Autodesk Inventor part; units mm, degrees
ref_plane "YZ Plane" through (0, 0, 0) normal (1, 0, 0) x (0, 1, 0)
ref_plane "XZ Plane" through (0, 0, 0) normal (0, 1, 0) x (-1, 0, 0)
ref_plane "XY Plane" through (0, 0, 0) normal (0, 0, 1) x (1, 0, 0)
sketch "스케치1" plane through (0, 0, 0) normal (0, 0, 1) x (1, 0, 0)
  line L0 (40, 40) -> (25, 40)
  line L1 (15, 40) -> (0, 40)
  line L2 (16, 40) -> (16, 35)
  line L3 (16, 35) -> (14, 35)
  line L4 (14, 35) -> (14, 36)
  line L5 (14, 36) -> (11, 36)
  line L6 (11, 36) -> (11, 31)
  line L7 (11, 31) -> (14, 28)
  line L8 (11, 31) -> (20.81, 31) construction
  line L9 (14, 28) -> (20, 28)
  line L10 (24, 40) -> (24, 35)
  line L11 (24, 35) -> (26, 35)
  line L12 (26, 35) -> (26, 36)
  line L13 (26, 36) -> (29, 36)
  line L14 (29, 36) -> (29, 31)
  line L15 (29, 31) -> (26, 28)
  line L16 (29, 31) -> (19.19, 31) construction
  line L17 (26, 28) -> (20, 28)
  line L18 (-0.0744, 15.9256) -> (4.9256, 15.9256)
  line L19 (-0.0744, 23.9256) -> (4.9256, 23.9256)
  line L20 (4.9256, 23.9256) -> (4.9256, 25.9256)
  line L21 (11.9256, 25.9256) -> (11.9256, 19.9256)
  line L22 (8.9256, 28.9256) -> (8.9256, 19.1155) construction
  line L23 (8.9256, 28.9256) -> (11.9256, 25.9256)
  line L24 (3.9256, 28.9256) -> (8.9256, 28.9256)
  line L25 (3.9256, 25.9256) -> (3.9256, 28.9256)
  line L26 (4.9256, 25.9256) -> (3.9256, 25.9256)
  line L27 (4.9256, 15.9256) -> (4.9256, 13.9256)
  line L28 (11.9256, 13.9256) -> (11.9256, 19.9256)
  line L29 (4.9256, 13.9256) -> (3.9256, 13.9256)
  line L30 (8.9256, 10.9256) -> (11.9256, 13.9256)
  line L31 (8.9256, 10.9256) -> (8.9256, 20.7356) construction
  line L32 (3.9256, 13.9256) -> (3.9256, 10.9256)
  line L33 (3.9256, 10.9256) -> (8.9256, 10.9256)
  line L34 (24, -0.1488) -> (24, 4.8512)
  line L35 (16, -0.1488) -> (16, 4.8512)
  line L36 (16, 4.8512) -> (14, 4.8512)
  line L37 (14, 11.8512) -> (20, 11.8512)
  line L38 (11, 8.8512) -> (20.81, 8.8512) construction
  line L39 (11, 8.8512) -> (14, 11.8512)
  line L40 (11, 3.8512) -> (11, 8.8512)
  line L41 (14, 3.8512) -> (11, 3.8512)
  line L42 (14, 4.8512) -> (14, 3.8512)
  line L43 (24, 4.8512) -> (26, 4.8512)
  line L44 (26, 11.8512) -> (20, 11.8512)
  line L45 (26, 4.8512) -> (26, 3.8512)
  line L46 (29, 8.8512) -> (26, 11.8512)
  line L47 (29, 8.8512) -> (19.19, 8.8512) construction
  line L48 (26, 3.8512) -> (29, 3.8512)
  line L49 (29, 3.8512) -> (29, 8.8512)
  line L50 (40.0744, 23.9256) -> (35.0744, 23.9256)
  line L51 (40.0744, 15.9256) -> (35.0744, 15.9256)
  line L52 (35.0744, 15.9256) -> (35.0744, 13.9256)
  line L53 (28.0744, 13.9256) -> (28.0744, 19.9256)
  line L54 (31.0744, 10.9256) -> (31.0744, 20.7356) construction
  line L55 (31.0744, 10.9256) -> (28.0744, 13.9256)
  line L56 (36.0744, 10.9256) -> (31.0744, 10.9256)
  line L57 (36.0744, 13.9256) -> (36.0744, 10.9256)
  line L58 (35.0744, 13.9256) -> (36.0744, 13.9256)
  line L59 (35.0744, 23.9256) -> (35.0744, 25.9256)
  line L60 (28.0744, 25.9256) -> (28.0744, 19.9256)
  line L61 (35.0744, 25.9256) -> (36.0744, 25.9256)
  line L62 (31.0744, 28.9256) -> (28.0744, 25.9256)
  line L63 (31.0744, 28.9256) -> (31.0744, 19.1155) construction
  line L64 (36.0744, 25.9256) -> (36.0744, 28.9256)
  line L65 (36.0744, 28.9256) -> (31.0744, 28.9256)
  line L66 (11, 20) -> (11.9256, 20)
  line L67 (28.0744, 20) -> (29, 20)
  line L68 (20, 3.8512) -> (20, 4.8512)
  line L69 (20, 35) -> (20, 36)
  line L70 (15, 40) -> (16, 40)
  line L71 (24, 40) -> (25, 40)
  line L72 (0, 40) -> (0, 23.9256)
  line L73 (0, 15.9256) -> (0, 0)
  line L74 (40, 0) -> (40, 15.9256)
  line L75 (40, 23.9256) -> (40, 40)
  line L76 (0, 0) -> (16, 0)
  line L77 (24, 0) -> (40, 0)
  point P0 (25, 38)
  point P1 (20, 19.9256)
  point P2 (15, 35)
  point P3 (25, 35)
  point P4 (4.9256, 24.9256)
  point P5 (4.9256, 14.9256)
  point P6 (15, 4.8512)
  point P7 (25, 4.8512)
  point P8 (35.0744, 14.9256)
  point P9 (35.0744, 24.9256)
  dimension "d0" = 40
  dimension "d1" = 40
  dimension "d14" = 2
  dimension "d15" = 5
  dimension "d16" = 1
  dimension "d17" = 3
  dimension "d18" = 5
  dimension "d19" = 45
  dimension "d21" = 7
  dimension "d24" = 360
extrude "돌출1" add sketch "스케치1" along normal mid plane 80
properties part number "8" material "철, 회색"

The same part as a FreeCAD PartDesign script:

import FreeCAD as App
import Part
import Sketcher
from FreeCAD import Vector

doc = App.newDocument("Part")
body = doc.addObject("PartDesign::Body", "Body")

# Sketch on XY plane
sketch1 = body.newObject("Sketcher::SketchObject", "Sketch")
sketch1.AttachmentSupport = (doc.getObject("XY_Plane"), [""])
sketch1.MapMode = "FlatFace"
sketch1.addGeometry(Part.LineSegment(Vector(40, 23.9, 0), Vector(40, 40, 0)), False)
sketch1.addGeometry(Part.LineSegment(Vector(40, 40, 0), Vector(24, 40, 0)), False)
sketch1.addGeometry(Part.LineSegment(Vector(24, 40, 0), Vector(24, 35, 0)), False)
sketch1.addGeometry(Part.LineSegment(Vector(24, 35, 0), Vector(26, 35, 0)), False)
sketch1.addGeometry(Part.LineSegment(Vector(26, 35, 0), Vector(26, 36, 0)), False)
sketch1.addGeometry(Part.LineSegment(Vector(26, 36, 0), Vector(29, 36, 0)), False)
sketch1.addGeometry(Part.LineSegment(Vector(29, 36, 0), Vector(29, 31, 0)), False)
sketch1.addGeometry(Part.LineSegment(Vector(29, 31, 0), Vector(26, 28, 0)), False)
sketch1.addGeometry(Part.LineSegment(Vector(26, 28, 0), Vector(14, 28, 0)), False)
sketch1.addGeometry(Part.LineSegment(Vector(14, 28, 0), Vector(11, 31, 0)), False)
sketch1.addGeometry(Part.LineSegment(Vector(11, 31, 0), Vector(11, 36, 0)), False)
sketch1.addGeometry(Part.LineSegment(Vector(11, 36, 0), Vector(14, 36, 0)), False)
sketch1.addGeometry(Part.LineSegment(Vector(14, 36, 0), Vector(14, 35, 0)), False)
sketch1.addGeometry(Part.LineSegment(Vector(14, 35, 0), Vector(16, 35, 0)), False)
sketch1.addGeometry(Part.LineSegment(Vector(16, 35, 0), Vector(16, 40, 0)), False)
sketch1.addGeometry(Part.LineSegment(Vector(16, 40, 0), Vector(0, 40, 0)), False)
sketch1.addGeometry(Part.LineSegment(Vector(0, 40, 0), Vector(0, 23.9, 0)), False)
sketch1.addGeometry(Part.LineSegment(Vector(0, 23.9, 0), Vector(4.9, 23.9, 0)), False)
sketch1.addGeometry(Part.LineSegment(Vector(4.9, 23.9, 0), Vector(4.9, 25.9, 0)), False)
sketch1.addGeometry(Part.LineSegment(Vector(4.9, 25.9, 0), Vector(3.9, 25.9, 0)), False)
sketch1.addGeometry(Part.LineSegment(Vector(3.9, 25.9, 0), Vector(3.9, 28.9, 0)), False)
sketch1.addGeometry(Part.LineSegment(Vector(3.9, 28.9, 0), Vector(8.9, 28.9, 0)), False)
sketch1.addGeometry(Part.LineSegment(Vector(8.9, 28.9, 0), Vector(11.9, 25.9, 0)), False)
sketch1.addGeometry(Part.LineSegment(Vector(11.9, 25.9, 0), Vector(11.9, 13.9, 0)), False)
sketch1.addGeometry(Part.LineSegment(Vector(11.9, 13.9, 0), Vector(8.9, 10.9, 0)), False)
sketch1.addGeometry(Part.LineSegment(Vector(8.9, 10.9, 0), Vector(3.9, 10.9, 0)), False)
sketch1.addGeometry(Part.LineSegment(Vector(3.9, 10.9, 0), Vector(3.9, 13.9, 0)), False)
sketch1.addGeometry(Part.LineSegment(Vector(3.9, 13.9, 0), Vector(4.9, 13.9, 0)), False)
sketch1.addGeometry(Part.LineSegment(Vector(4.9, 13.9, 0), Vector(4.9, 15.9, 0)), False)
sketch1.addGeometry(Part.LineSegment(Vector(4.9, 15.9, 0), Vector(0, 15.9, 0)), False)
sketch1.addGeometry(Part.LineSegment(Vector(0, 15.9, 0), Vector(0, 0, 0)), False)
sketch1.addGeometry(Part.LineSegment(Vector(0, 0, 0), Vector(16, 0, 0)), False)
sketch1.addGeometry(Part.LineSegment(Vector(16, 0, 0), Vector(16, 4.9, 0)), False)
sketch1.addGeometry(Part.LineSegment(Vector(16, 4.9, 0), Vector(14, 4.9, 0)), False)
sketch1.addGeometry(Part.LineSegment(Vector(14, 4.9, 0), Vector(14, 3.9, 0)), False)
sketch1.addGeometry(Part.LineSegment(Vector(14, 3.9, 0), Vector(11, 3.9, 0)), False)
sketch1.addGeometry(Part.LineSegment(Vector(11, 3.9, 0), Vector(11, 8.9, 0)), False)
sketch1.addGeometry(Part.LineSegment(Vector(11, 8.9, 0), Vector(14, 11.9, 0)), False)
sketch1.addGeometry(Part.LineSegment(Vector(14, 11.9, 0), Vector(26, 11.9, 0)), False)
sketch1.addGeometry(Part.LineSegment(Vector(26, 11.9, 0), Vector(29, 8.9, 0)), False)
sketch1.addGeometry(Part.LineSegment(Vector(29, 8.9, 0), Vector(29, 3.9, 0)), False)
sketch1.addGeometry(Part.LineSegment(Vector(29, 3.9, 0), Vector(26, 3.9, 0)), False)
sketch1.addGeometry(Part.LineSegment(Vector(26, 3.9, 0), Vector(26, 4.9, 0)), False)
sketch1.addGeometry(Part.LineSegment(Vector(26, 4.9, 0), Vector(24, 4.9, 0)), False)
sketch1.addGeometry(Part.LineSegment(Vector(24, 4.9, 0), Vector(24, 0, 0)), False)
sketch1.addGeometry(Part.LineSegment(Vector(24, 0, 0), Vector(40, 0, 0)), False)
sketch1.addGeometry(Part.LineSegment(Vector(40, 0, 0), Vector(40, 15.9, 0)), False)
sketch1.addGeometry(Part.LineSegment(Vector(40, 15.9, 0), Vector(35.1, 15.9, 0)), False)
sketch1.addGeometry(Part.LineSegment(Vector(35.1, 15.9, 0), Vector(35.1, 13.9, 0)), False)
sketch1.addGeometry(Part.LineSegment(Vector(35.1, 13.9, 0), Vector(36.1, 13.9, 0)), False)
sketch1.addGeometry(Part.LineSegment(Vector(36.1, 13.9, 0), Vector(36.1, 10.9, 0)), False)
sketch1.addGeometry(Part.LineSegment(Vector(36.1, 10.9, 0), Vector(31.1, 10.9, 0)), False)
sketch1.addGeometry(Part.LineSegment(Vector(31.1, 10.9, 0), Vector(28.1, 13.9, 0)), False)
sketch1.addGeometry(Part.LineSegment(Vector(28.1, 13.9, 0), Vector(28.1, 25.9, 0)), False)
sketch1.addGeometry(Part.LineSegment(Vector(28.1, 25.9, 0), Vector(31.1, 28.9, 0)), False)
sketch1.addGeometry(Part.LineSegment(Vector(31.1, 28.9, 0), Vector(36.1, 28.9, 0)), False)
sketch1.addGeometry(Part.LineSegment(Vector(36.1, 28.9, 0), Vector(36.1, 25.9, 0)), False)
sketch1.addGeometry(Part.LineSegment(Vector(36.1, 25.9, 0), Vector(35.1, 25.9, 0)), False)
sketch1.addGeometry(Part.LineSegment(Vector(35.1, 25.9, 0), Vector(35.1, 23.9, 0)), False)
sketch1.addGeometry(Part.LineSegment(Vector(35.1, 23.9, 0), Vector(40, 23.9, 0)), False)
sketch1.addConstraint(Sketcher.Constraint("Coincident", 0, 2, 1, 1))
sketch1.addConstraint(Sketcher.Constraint("Coincident", 1, 2, 2, 1))
sketch1.addConstraint(Sketcher.Constraint("Coincident", 2, 2, 3, 1))
sketch1.addConstraint(Sketcher.Constraint("Coincident", 3, 2, 4, 1))
sketch1.addConstraint(Sketcher.Constraint("Coincident", 4, 2, 5, 1))
sketch1.addConstraint(Sketcher.Constraint("Coincident", 5, 2, 6, 1))
sketch1.addConstraint(Sketcher.Constraint("Coincident", 6, 2, 7, 1))
sketch1.addConstraint(Sketcher.Constraint("Coincident", 7, 2, 8, 1))
sketch1.addConstraint(Sketcher.Constraint("Coincident", 8, 2, 9, 1))
sketch1.addConstraint(Sketcher.Constraint("Coincident", 9, 2, 10, 1))
sketch1.addConstraint(Sketcher.Constraint("Coincident", 10, 2, 11, 1))
sketch1.addConstraint(Sketcher.Constraint("Coincident", 11, 2, 12, 1))
sketch1.addConstraint(Sketcher.Constraint("Coincident", 12, 2, 13, 1))
sketch1.addConstraint(Sketcher.Constraint("Coincident", 13, 2, 14, 1))
sketch1.addConstraint(Sketcher.Constraint("Coincident", 14, 2, 15, 1))
sketch1.addConstraint(Sketcher.Constraint("Coincident", 15, 2, 16, 1))
sketch1.addConstraint(Sketcher.Constraint("Coincident", 16, 2, 17, 1))
sketch1.addConstraint(Sketcher.Constraint("Coincident", 17, 2, 18, 1))
sketch1.addConstraint(Sketcher.Constraint("Coincident", 18, 2, 19, 1))
sketch1.addConstraint(Sketcher.Constraint("Coincident", 19, 2, 20, 1))
sketch1.addConstraint(Sketcher.Constraint("Coincident", 20, 2, 21, 1))
sketch1.addConstraint(Sketcher.Constraint("Coincident", 21, 2, 22, 1))
sketch1.addConstraint(Sketcher.Constraint("Coincident", 22, 2, 23, 1))
sketch1.addConstraint(Sketcher.Constraint("Coincident", 23, 2, 24, 1))
sketch1.addConstraint(Sketcher.Constraint("Coincident", 24, 2, 25, 1))
sketch1.addConstraint(Sketcher.Constraint("Coincident", 25, 2, 26, 1))
sketch1.addConstraint(Sketcher.Constraint("Coincident", 26, 2, 27, 1))
sketch1.addConstraint(Sketcher.Constraint("Coincident", 27, 2, 28, 1))
sketch1.addConstraint(Sketcher.Constraint("Coincident", 28, 2, 29, 1))
sketch1.addConstraint(Sketcher.Constraint("Coincident", 29, 2, 30, 1))
sketch1.addConstraint(Sketcher.Constraint("Coincident", 30, 2, 31, 1))
sketch1.addConstraint(Sketcher.Constraint("Coincident", 31, 2, 32, 1))
sketch1.addConstraint(Sketcher.Constraint("Coincident", 32, 2, 33, 1))
sketch1.addConstraint(Sketcher.Constraint("Coincident", 33, 2, 34, 1))
sketch1.addConstraint(Sketcher.Constraint("Coincident", 34, 2, 35, 1))
sketch1.addConstraint(Sketcher.Constraint("Coincident", 35, 2, 36, 1))
sketch1.addConstraint(Sketcher.Constraint("Coincident", 36, 2, 37, 1))
sketch1.addConstraint(Sketcher.Constraint("Coincident", 37, 2, 38, 1))
sketch1.addConstraint(Sketcher.Constraint("Coincident", 38, 2, 39, 1))
sketch1.addConstraint(Sketcher.Constraint("Coincident", 39, 2, 40, 1))
sketch1.addConstraint(Sketcher.Constraint("Coincident", 40, 2, 41, 1))
sketch1.addConstraint(Sketcher.Constraint("Coincident", 41, 2, 42, 1))
sketch1.addConstraint(Sketcher.Constraint("Coincident", 42, 2, 43, 1))
sketch1.addConstraint(Sketcher.Constraint("Coincident", 43, 2, 44, 1))
sketch1.addConstraint(Sketcher.Constraint("Coincident", 44, 2, 45, 1))
sketch1.addConstraint(Sketcher.Constraint("Coincident", 45, 2, 46, 1))
sketch1.addConstraint(Sketcher.Constraint("Coincident", 46, 2, 47, 1))
sketch1.addConstraint(Sketcher.Constraint("Coincident", 47, 2, 48, 1))
sketch1.addConstraint(Sketcher.Constraint("Coincident", 48, 2, 49, 1))
sketch1.addConstraint(Sketcher.Constraint("Coincident", 49, 2, 50, 1))
sketch1.addConstraint(Sketcher.Constraint("Coincident", 50, 2, 51, 1))
sketch1.addConstraint(Sketcher.Constraint("Coincident", 51, 2, 52, 1))
sketch1.addConstraint(Sketcher.Constraint("Coincident", 52, 2, 53, 1))
sketch1.addConstraint(Sketcher.Constraint("Coincident", 53, 2, 54, 1))
sketch1.addConstraint(Sketcher.Constraint("Coincident", 54, 2, 55, 1))
sketch1.addConstraint(Sketcher.Constraint("Coincident", 55, 2, 56, 1))
sketch1.addConstraint(Sketcher.Constraint("Coincident", 56, 2, 57, 1))
sketch1.addConstraint(Sketcher.Constraint("Coincident", 57, 2, 58, 1))
sketch1.addConstraint(Sketcher.Constraint("Coincident", 58, 2, 59, 1))
sketch1.addConstraint(Sketcher.Constraint("Coincident", 59, 2, 0, 1))
sketch1.addConstraint(Sketcher.Constraint("Vertical", 0))
sketch1.addConstraint(Sketcher.Constraint("Horizontal", 1))
sketch1.addConstraint(Sketcher.Constraint("Vertical", 2))
sketch1.addConstraint(Sketcher.Constraint("Horizontal", 3))
sketch1.addConstraint(Sketcher.Constraint("Vertical", 4))
sketch1.addConstraint(Sketcher.Constraint("Horizontal", 5))
sketch1.addConstraint(Sketcher.Constraint("Vertical", 6))
sketch1.addConstraint(Sketcher.Constraint("Horizontal", 8))
sketch1.addConstraint(Sketcher.Constraint("Vertical", 10))
sketch1.addConstraint(Sketcher.Constraint("Horizontal", 11))
sketch1.addConstraint(Sketcher.Constraint("Vertical", 12))
sketch1.addConstraint(Sketcher.Constraint("Horizontal", 13))
sketch1.addConstraint(Sketcher.Constraint("Vertical", 14))
sketch1.addConstraint(Sketcher.Constraint("Horizontal", 15))
sketch1.addConstraint(Sketcher.Constraint("Vertical", 16))
sketch1.addConstraint(Sketcher.Constraint("Horizontal", 17))
sketch1.addConstraint(Sketcher.Constraint("Vertical", 18))
sketch1.addConstraint(Sketcher.Constraint("Horizontal", 19))
sketch1.addConstraint(Sketcher.Constraint("Vertical", 20))
sketch1.addConstraint(Sketcher.Constraint("Horizontal", 21))
sketch1.addConstraint(Sketcher.Constraint("Vertical", 23))
sketch1.addConstraint(Sketcher.Constraint("Horizontal", 25))
sketch1.addConstraint(Sketcher.Constraint("Vertical", 26))
sketch1.addConstraint(Sketcher.Constraint("Horizontal", 27))
sketch1.addConstraint(Sketcher.Constraint("Vertical", 28))
sketch1.addConstraint(Sketcher.Constraint("Horizontal", 29))
sketch1.addConstraint(Sketcher.Constraint("Vertical", 30))
sketch1.addConstraint(Sketcher.Constraint("Horizontal", 31))
sketch1.addConstraint(Sketcher.Constraint("Vertical", 32))
sketch1.addConstraint(Sketcher.Constraint("Horizontal", 33))
sketch1.addConstraint(Sketcher.Constraint("Vertical", 34))
sketch1.addConstraint(Sketcher.Constraint("Horizontal", 35))
sketch1.addConstraint(Sketcher.Constraint("Vertical", 36))
sketch1.addConstraint(Sketcher.Constraint("Horizontal", 38))
sketch1.addConstraint(Sketcher.Constraint("Vertical", 40))
sketch1.addConstraint(Sketcher.Constraint("Horizontal", 41))
sketch1.addConstraint(Sketcher.Constraint("Vertical", 42))
sketch1.addConstraint(Sketcher.Constraint("Horizontal", 43))
sketch1.addConstraint(Sketcher.Constraint("Vertical", 44))
sketch1.addConstraint(Sketcher.Constraint("Horizontal", 45))
sketch1.addConstraint(Sketcher.Constraint("Vertical", 46))
sketch1.addConstraint(Sketcher.Constraint("Horizontal", 47))
sketch1.addConstraint(Sketcher.Constraint("Vertical", 48))
sketch1.addConstraint(Sketcher.Constraint("Horizontal", 49))
sketch1.addConstraint(Sketcher.Constraint("Vertical", 50))
sketch1.addConstraint(Sketcher.Constraint("Horizontal", 51))
sketch1.addConstraint(Sketcher.Constraint("Vertical", 53))
sketch1.addConstraint(Sketcher.Constraint("Horizontal", 55))
sketch1.addConstraint(Sketcher.Constraint("Vertical", 56))
sketch1.addConstraint(Sketcher.Constraint("Horizontal", 57))
sketch1.addConstraint(Sketcher.Constraint("Vertical", 58))
sketch1.addConstraint(Sketcher.Constraint("Horizontal", 59))
sketch1.addConstraint(Sketcher.Constraint("Coincident", 30, 2, -1, 1))
sketch1.addConstraint(Sketcher.Constraint("PointOnObject", 15, 2, -2))
sketch1.addConstraint(Sketcher.Constraint("PointOnObject", 44, 2, -1))
sketch1.addConstraint(Sketcher.Constraint("Perpendicular", 7, 9))
sketch1.addConstraint(Sketcher.Constraint("Parallel", 9, 22))
sketch1.addConstraint(Sketcher.Constraint("Perpendicular", 22, 24))
sketch1.addConstraint(Sketcher.Constraint("Parallel", 24, 37))
sketch1.addConstraint(Sketcher.Constraint("Perpendicular", 37, 39))
sketch1.addConstraint(Sketcher.Constraint("Parallel", 39, 52))
sketch1.addConstraint(Sketcher.Constraint("Perpendicular", 52, 54))
sketch1.addConstraint(Sketcher.Constraint("Horizontal", 6, 2, 9, 2))
sketch1.addConstraint(Sketcher.Constraint("Horizontal", 5, 2, 10, 2))
sketch1.addConstraint(Sketcher.Constraint("Horizontal", 3, 2, 12, 2))
sketch1.addConstraint(Sketcher.Constraint("Horizontal", 1, 2, 14, 2))
sketch1.addConstraint(Sketcher.Constraint("Horizontal", 19, 2, 22, 2))
sketch1.addConstraint(Sketcher.Constraint("Horizontal", 23, 2, 26, 2))
sketch1.addConstraint(Sketcher.Constraint("Horizontal", 36, 2, 39, 2))
sketch1.addConstraint(Sketcher.Constraint("Horizontal", 35, 2, 40, 2))
sketch1.addConstraint(Sketcher.Constraint("Horizontal", 33, 2, 42, 2))
sketch1.addConstraint(Sketcher.Constraint("Horizontal", 29, 2, 46, 2))
sketch1.addConstraint(Sketcher.Constraint("Horizontal", 27, 2, 48, 2))
sketch1.addConstraint(Sketcher.Constraint("Horizontal", 25, 2, 50, 2))
sketch1.addConstraint(Sketcher.Constraint("Horizontal", 49, 2, 52, 2))
sketch1.addConstraint(Sketcher.Constraint("Horizontal", 22, 2, 53, 2))
sketch1.addConstraint(Sketcher.Constraint("Horizontal", 21, 2, 54, 2))
sketch1.addConstraint(Sketcher.Constraint("Horizontal", 53, 2, 56, 2))
sketch1.addConstraint(Sketcher.Constraint("Horizontal", 17, 2, 58, 2))
sketch1.addConstraint(Sketcher.Constraint("Vertical", 4, 2, 7, 2))
sketch1.addConstraint(Sketcher.Constraint("Vertical", 8, 2, 11, 2))
sketch1.addConstraint(Sketcher.Constraint("Vertical", 21, 2, 24, 2))
sketch1.addConstraint(Sketcher.Constraint("Vertical", 20, 2, 25, 2))
sketch1.addConstraint(Sketcher.Constraint("Vertical", 18, 2, 27, 2))
sketch1.addConstraint(Sketcher.Constraint("Vertical", 14, 2, 31, 2))
sketch1.addConstraint(Sketcher.Constraint("Vertical", 12, 2, 33, 2))
sketch1.addConstraint(Sketcher.Constraint("Vertical", 10, 2, 35, 2))
sketch1.addConstraint(Sketcher.Constraint("Vertical", 34, 2, 37, 2))
sketch1.addConstraint(Sketcher.Constraint("Vertical", 7, 2, 38, 2))
sketch1.addConstraint(Sketcher.Constraint("Vertical", 6, 2, 39, 2))
sketch1.addConstraint(Sketcher.Constraint("Vertical", 38, 2, 41, 2))
sketch1.addConstraint(Sketcher.Constraint("Vertical", 2, 2, 43, 2))
sketch1.addConstraint(Sketcher.Constraint("Vertical", 0, 2, 45, 2))
sketch1.addConstraint(Sketcher.Constraint("Vertical", 50, 2, 55, 2))
sketch1.addConstraint(Sketcher.Constraint("Vertical", 48, 2, 57, 2))
sketch1.addConstraint(Sketcher.Constraint("Equal", 3, 13))
sketch1.addConstraint(Sketcher.Constraint("Equal", 1, 15))
sketch1.addConstraint(Sketcher.Constraint("Equal", 29, 47))
sketch1.addConstraint(Sketcher.Constraint("Equal", 27, 49))
sketch1.addConstraint(Sketcher.Constraint("Equal", 25, 51))
sketch1.addConstraint(Sketcher.Constraint("Equal", 55, 2))
sketch1.addConstraint(Sketcher.Constraint("Equal", 57, 4))
sketch1.addConstraint(Sketcher.Constraint("Equal", 2, 6))
sketch1.addConstraint(Sketcher.Constraint("Equal", 43, 18))
sketch1.addConstraint(Sketcher.Constraint("Equal", 41, 20))
sketch1.addConstraint(Sketcher.Constraint("Equal", 38, 23))
sketch1.addConstraint(Sketcher.Constraint("Equal", 18, 28))
sketch1.addConstraint(Sketcher.Constraint("Equal", 12, 34))
sketch1.addConstraint(Sketcher.Constraint("Equal", 14, 36))
sketch1.addConstraint(Sketcher.Constraint("DistanceX", 3, 1, 3, 2, 2.0))
sketch1.addConstraint(Sketcher.Constraint("DistanceX", 5, 1, 5, 2, 3.0))
sketch1.addConstraint(Sketcher.Constraint("DistanceX", 19, 2, 19, 1, 1.0))
sketch1.addConstraint(Sketcher.Constraint("DistanceX", 21, 1, 21, 2, 5.0))
sketch1.addConstraint(Sketcher.Constraint("DistanceX", -1, 1, 0, 2, 40.0))
sketch1.addConstraint(Sketcher.Constraint("DistanceY", -1, 1, 0, 2, 40.0))
sketch1.addConstraint(Sketcher.Constraint("DistanceX", 1, 2, 1, 1, 16.0))
sketch1.addConstraint(Sketcher.Constraint("DistanceX", 17, 1, 17, 2, 4.9256))
sketch1.addConstraint(Sketcher.Constraint("DistanceY", 0, 1, 0, 2, 16.0744))
sketch1.addConstraint(Sketcher.Constraint("DistanceY", 32, 1, 32, 2, 4.8512))
pad1 = body.newObject("PartDesign::Pad", "Pad")
pad1.Profile = sketch1
pad1.Length = 80
pad1.Midplane = True

doc.recompute()
